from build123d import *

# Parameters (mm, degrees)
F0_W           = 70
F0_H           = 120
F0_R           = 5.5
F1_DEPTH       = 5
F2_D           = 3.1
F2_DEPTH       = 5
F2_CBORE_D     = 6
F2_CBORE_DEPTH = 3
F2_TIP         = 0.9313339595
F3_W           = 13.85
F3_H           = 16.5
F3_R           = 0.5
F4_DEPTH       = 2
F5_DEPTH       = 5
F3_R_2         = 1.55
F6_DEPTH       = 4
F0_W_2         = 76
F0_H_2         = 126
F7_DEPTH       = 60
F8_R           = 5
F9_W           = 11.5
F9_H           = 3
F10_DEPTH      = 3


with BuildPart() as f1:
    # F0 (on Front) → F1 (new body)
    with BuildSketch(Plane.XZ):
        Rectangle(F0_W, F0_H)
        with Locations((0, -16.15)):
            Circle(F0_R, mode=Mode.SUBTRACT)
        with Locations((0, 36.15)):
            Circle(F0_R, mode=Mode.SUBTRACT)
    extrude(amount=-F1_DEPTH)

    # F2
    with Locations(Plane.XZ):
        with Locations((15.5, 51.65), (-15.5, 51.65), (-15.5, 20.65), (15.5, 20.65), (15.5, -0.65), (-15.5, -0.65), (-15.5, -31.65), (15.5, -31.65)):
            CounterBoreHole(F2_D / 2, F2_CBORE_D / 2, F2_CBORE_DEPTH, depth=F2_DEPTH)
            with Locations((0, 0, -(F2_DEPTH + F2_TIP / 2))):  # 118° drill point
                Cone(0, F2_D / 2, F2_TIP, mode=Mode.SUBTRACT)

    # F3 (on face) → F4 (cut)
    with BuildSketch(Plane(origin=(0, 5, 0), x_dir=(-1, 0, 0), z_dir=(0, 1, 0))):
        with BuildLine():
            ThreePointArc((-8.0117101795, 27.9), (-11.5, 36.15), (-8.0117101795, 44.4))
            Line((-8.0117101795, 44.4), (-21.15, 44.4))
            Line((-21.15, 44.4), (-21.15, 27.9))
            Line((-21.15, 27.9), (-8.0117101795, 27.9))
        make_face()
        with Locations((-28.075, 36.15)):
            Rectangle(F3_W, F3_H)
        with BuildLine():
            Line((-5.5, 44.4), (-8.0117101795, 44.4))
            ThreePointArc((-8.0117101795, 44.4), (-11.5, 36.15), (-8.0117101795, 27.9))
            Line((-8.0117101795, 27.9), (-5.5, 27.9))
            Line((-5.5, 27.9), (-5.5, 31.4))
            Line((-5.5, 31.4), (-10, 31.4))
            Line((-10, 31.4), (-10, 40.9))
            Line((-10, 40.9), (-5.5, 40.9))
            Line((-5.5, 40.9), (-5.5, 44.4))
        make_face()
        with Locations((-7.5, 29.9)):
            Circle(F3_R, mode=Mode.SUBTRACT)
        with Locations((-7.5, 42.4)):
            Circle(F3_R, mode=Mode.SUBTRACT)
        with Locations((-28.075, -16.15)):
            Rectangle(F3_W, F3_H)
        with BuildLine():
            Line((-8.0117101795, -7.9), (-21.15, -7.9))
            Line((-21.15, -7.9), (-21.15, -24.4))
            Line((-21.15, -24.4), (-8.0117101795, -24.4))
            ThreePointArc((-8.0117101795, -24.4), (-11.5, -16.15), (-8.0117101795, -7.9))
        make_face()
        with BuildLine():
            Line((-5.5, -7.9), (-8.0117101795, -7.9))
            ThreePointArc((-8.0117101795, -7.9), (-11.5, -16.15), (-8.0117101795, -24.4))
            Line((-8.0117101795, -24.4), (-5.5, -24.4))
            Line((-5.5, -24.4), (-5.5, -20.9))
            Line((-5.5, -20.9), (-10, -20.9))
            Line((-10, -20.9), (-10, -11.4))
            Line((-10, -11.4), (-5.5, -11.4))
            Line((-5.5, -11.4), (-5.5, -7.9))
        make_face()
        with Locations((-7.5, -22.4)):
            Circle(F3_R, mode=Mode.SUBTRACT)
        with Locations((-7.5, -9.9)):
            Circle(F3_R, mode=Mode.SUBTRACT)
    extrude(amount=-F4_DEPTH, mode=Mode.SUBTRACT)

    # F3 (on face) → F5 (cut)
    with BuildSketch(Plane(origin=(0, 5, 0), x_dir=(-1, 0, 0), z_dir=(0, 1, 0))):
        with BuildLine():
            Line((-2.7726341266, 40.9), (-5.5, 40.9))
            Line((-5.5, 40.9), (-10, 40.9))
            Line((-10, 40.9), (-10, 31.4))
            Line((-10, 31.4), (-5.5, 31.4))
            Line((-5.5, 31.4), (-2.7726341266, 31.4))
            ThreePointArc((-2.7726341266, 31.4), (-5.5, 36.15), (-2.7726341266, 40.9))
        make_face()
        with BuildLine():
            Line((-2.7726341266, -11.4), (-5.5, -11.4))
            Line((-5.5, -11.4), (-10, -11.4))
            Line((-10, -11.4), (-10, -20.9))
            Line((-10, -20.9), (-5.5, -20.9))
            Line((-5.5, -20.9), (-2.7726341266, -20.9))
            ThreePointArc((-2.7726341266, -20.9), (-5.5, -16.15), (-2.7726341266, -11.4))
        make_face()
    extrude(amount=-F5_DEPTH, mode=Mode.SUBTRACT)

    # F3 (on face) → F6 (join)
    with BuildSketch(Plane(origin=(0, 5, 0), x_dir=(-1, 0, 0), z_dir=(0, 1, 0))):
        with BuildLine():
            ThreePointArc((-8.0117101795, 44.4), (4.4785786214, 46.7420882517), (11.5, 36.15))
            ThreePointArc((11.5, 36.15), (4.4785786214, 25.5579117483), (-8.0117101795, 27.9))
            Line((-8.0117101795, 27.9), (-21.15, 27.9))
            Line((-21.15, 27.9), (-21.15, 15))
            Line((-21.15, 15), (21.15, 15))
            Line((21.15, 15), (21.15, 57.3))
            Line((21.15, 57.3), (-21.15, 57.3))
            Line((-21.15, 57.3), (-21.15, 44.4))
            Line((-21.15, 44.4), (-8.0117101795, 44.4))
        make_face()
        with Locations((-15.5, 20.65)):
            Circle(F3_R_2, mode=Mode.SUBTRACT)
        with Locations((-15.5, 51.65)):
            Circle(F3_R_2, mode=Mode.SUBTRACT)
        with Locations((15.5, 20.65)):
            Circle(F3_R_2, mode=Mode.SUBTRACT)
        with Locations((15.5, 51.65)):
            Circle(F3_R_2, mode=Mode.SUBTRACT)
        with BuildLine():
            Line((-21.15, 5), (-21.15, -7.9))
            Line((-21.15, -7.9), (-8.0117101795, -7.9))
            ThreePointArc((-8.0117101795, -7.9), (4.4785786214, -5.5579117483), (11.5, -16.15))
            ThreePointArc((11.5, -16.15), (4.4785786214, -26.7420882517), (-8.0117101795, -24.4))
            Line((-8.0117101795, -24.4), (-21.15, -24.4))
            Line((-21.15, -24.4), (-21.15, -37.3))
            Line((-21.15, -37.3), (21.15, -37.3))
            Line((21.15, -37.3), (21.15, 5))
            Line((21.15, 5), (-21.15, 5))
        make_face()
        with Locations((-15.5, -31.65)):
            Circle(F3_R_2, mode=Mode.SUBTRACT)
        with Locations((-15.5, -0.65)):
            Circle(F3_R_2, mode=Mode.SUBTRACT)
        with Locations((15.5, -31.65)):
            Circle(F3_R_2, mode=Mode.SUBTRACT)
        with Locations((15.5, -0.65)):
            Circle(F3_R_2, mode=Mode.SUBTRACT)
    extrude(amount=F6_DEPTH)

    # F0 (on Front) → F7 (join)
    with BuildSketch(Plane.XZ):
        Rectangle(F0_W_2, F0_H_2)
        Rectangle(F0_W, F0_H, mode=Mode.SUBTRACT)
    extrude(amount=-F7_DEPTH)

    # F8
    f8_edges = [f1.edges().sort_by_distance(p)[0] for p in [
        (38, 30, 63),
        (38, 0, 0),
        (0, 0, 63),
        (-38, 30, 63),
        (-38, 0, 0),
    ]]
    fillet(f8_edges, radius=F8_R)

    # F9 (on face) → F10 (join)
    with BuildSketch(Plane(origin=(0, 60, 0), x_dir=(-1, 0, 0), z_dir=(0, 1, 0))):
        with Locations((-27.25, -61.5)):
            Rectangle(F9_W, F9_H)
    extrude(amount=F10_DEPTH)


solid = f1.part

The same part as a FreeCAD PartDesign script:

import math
import FreeCAD as App
import Part
import Sketcher

V = App.Vector


def edges_at(feature, points):
    """Names of the edges that pass closest to the given points."""
    edges = feature.Shape.Edges
    near = lambda p: min(range(len(edges)), key=lambda i: edges[i].distToShape(Part.Vertex(*p))[0])
    return sorted({f"Edge{near(p) + 1}" for p in points})

doc = App.newDocument("Part")
body = doc.addObject("PartDesign::Body", "Body")

sketch1 = body.newObject("Sketcher::SketchObject", "Sketch")
sketch1.AttachmentSupport = (doc.getObject("XZ_Plane"), [""])
sketch1.MapMode = "FlatFace"
sketch1.addGeometry(Part.LineSegment(V(-35, 60, 0), V(-35, -60, 0)), False)
sketch1.addGeometry(Part.LineSegment(V(-35, -60, 0), V(35, -60, 0)), False)
sketch1.addGeometry(Part.LineSegment(V(35, -60, 0), V(35, 60, 0)), False)
sketch1.addGeometry(Part.LineSegment(V(35, 60, 0), V(-35, 60, 0)), False)
sketch1.addGeometry(Part.Circle(V(0, -16, 0), V(0, 0, 1), 6), False)
sketch1.addGeometry(Part.Circle(V(0, 36, 0), V(0, 0, 1), 6), False)
sketch1.addConstraint(Sketcher.Constraint("Coincident", 0, 2, 1, 1))
sketch1.addConstraint(Sketcher.Constraint("Coincident", 1, 2, 2, 1))
sketch1.addConstraint(Sketcher.Constraint("Coincident", 2, 2, 3, 1))
sketch1.addConstraint(Sketcher.Constraint("Coincident", 3, 2, 0, 1))
sketch1.addConstraint(Sketcher.Constraint("Vertical", 0))
sketch1.addConstraint(Sketcher.Constraint("Horizontal", 1))
sketch1.addConstraint(Sketcher.Constraint("Vertical", 2))
sketch1.addConstraint(Sketcher.Constraint("Horizontal", 3))
sketch1.addConstraint(Sketcher.Constraint("Equal", 4, 5))
sketch1.addConstraint(Sketcher.Constraint("Symmetric", 0, 2, 2, 2, -1, 1))
sketch1.addConstraint(Sketcher.Constraint("PointOnObject", 4, 3, -2))
sketch1.addConstraint(Sketcher.Constraint("PointOnObject", 5, 3, -2))
sketch1.addConstraint(Sketcher.Constraint("Diameter", 4, 11.0))
sketch1.addConstraint(Sketcher.Constraint("DistanceX", 1, 1, 1, 2, 70.0))
sketch1.addConstraint(Sketcher.Constraint("DistanceY", 0, 2, 0, 1, 120.0))
sketch1.addConstraint(Sketcher.Constraint("DistanceY", 4, 3, 5, 3, 52.3))
sketch1.addConstraint(Sketcher.Constraint("DistanceY", 4, 3, -1, 1, 16.15))
pad1 = body.newObject("PartDesign::Pad", "Pad")
pad1.Profile = sketch1
pad1.Length = 5
pad1.Reversed = True

sketch2 = body.newObject("Sketcher::SketchObject", "Sketch001")
sketch2.AttachmentSupport = (doc.getObject("XZ_Plane"), [""])
sketch2.MapMode = "FlatFace"
sketch2.addGeometry(Part.Circle(V(15.5, 51.6, 0), V(0, 0, 1), 1.6), False)
sketch2.addGeometry(Part.Circle(V(-15.5, 51.6, 0), V(0, 0, 1), 1.6), False)
sketch2.addGeometry(Part.Circle(V(-15.5, 20.6, 0), V(0, 0, 1), 1.6), False)
sketch2.addGeometry(Part.Circle(V(15.5, 20.6, 0), V(0, 0, 1), 1.6), False)
sketch2.addGeometry(Part.Circle(V(15.5, -0.7, 0), V(0, 0, 1), 1.6), False)
sketch2.addGeometry(Part.Circle(V(-15.5, -0.7, 0), V(0, 0, 1), 1.6), False)
sketch2.addGeometry(Part.Circle(V(-15.5, -31.6, 0), V(0, 0, 1), 1.6), False)
sketch2.addGeometry(Part.Circle(V(15.5, -31.6, 0), V(0, 0, 1), 1.6), False)
sketch2.addConstraint(Sketcher.Constraint("Equal", 0, 1))
sketch2.addConstraint(Sketcher.Constraint("Equal", 1, 2))
sketch2.addConstraint(Sketcher.Constraint("Equal", 2, 3))
sketch2.addConstraint(Sketcher.Constraint("Equal", 3, 4))
sketch2.addConstraint(Sketcher.Constraint("Equal", 4, 5))
sketch2.addConstraint(Sketcher.Constraint("Equal", 5, 6))
sketch2.addConstraint(Sketcher.Constraint("Equal", 6, 7))
sketch2.addConstraint(Sketcher.Constraint("Symmetric", 0, 3, 1, 3, -2))
sketch2.addConstraint(Sketcher.Constraint("Symmetric", 2, 3, 3, 3, -2))
sketch2.addConstraint(Sketcher.Constraint("Symmetric", 4, 3, 5, 3, -2))
sketch2.addConstraint(Sketcher.Constraint("Symmetric", 6, 3, 7, 3, -2))
sketch2.addConstraint(Sketcher.Constraint("Vertical", 1, 3, 2, 3))
sketch2.addConstraint(Sketcher.Constraint("Vertical", 3, 3, 4, 3))
sketch2.addConstraint(Sketcher.Constraint("Vertical", 5, 3, 6, 3))
sketch2.addConstraint(Sketcher.Constraint("Diameter", 0, 3.1))
sketch2.addConstraint(Sketcher.Constraint("DistanceX", 1, 3, 0, 3, 31.0))
sketch2.addConstraint(Sketcher.Constraint("DistanceY", 2, 3, 1, 3, 31.0))
sketch2.addConstraint(Sketcher.Constraint("DistanceY", 6, 3, 5, 3, 31.0))
sketch2.addConstraint(Sketcher.Constraint("DistanceY", 4, 3, 3, 3, 21.3))
sketch2.addConstraint(Sketcher.Constraint("DistanceY", -1, 1, 0, 3, 51.65))
doc.recompute()
hole = body.newObject("PartDesign::Hole", "Hole")
hole.Profile = sketch2
hole.ThreadType = "None"
hole.Diameter = 3.1
hole.DepthType = "Dimension"
hole.Depth = 5
hole.DrillPoint = "Angled"
hole.DrillPointAngle = 118
hole.HoleCutType = "Counterbore"
hole.HoleCutDiameter = 6
hole.HoleCutDepth = 3

sketch3 = body.newObject("Sketcher::SketchObject", "Sketch002")
sketch3.AttachmentSupport = (doc.getObject("XZ_Plane"), [""])
sketch3.MapMode = "FlatFace"
sketch3.AttachmentOffset = App.Placement(V(0, 0, -5), App.Rotation())
sketch3.addGeometry(Part.LineSegment(V(35, 44.4, 0), V(35, 27.9, 0)), False)
sketch3.addGeometry(Part.LineSegment(V(35, 27.9, 0), V(5.5, 27.9, 0)), False)
sketch3.addGeometry(Part.LineSegment(V(5.5, 27.9, 0), V(5.5, 31.4, 0)), False)
sketch3.addGeometry(Part.LineSegment(V(5.5, 31.4, 0), V(10, 31.4, 0)), False)
sketch3.addGeometry(Part.LineSegment(V(10, 31.4, 0), V(10, 40.9, 0)), False)
sketch3.addGeometry(Part.LineSegment(V(10, 40.9, 0), V(5.5, 40.9, 0)), False)
sketch3.addGeometry(Part.LineSegment(V(5.5, 40.9, 0), V(5.5, 44.4, 0)), False)
sketch3.addGeometry(Part.LineSegment(V(5.5, 44.4, 0), V(35, 44.4, 0)), False)
sketch3.addGeometry(Part.Circle(V(7.5, 29.9, 0), V(0, 0, 1), 0.5), False)
sketch3.addGeometry(Part.Circle(V(7.5, 42.4, 0), V(0, 0, 1), 0.5), False)
sketch3.addGeometry(Part.LineSegment(V(35, -7.9, 0), V(35, -24.4, 0)), False)
sketch3.addGeometry(Part.LineSegment(V(35, -24.4, 0), V(5.5, -24.4, 0)), False)
sketch3.addGeometry(Part.LineSegment(V(5.5, -24.4, 0), V(5.5, -20.9, 0)), False)
sketch3.addGeometry(Part.LineSegment(V(5.5, -20.9, 0), V(10, -20.9, 0)), False)
sketch3.addGeometry(Part.LineSegment(V(10, -20.9, 0), V(10, -11.4, 0)), False)
sketch3.addGeometry(Part.LineSegment(V(10, -11.4, 0), V(5.5, -11.4, 0)), False)
sketch3.addGeometry(Part.LineSegment(V(5.5, -11.4, 0), V(5.5, -7.9, 0)), False)
sketch3.addGeometry(Part.LineSegment(V(5.5, -7.9, 0), V(35, -7.9, 0)), False)
sketch3.addGeometry(Part.Circle(V(7.5, -22.4, 0), V(0, 0, 1), 0.5), False)
sketch3.addGeometry(Part.Circle(V(7.5, -9.9, 0), V(0, 0, 1), 0.5), False)
sketch3.addConstraint(Sketcher.Constraint("Coincident", 0, 2, 1, 1))
sketch3.addConstraint(Sketcher.Constraint("Coincident", 1, 2, 2, 1))
sketch3.addConstraint(Sketcher.Constraint("Coincident", 2, 2, 3, 1))
sketch3.addConstraint(Sketcher.Constraint("Coincident", 3, 2, 4, 1))
sketch3.addConstraint(Sketcher.Constraint("Coincident", 4, 2, 5, 1))
sketch3.addConstraint(Sketcher.Constraint("Coincident", 5, 2, 6, 1))
sketch3.addConstraint(Sketcher.Constraint("Coincident", 6, 2, 7, 1))
sketch3.addConstraint(Sketcher.Constraint("Coincident", 7, 2, 0, 1))
sketch3.addConstraint(Sketcher.Constraint("Coincident", 10, 2, 11, 1))
sketch3.addConstraint(Sketcher.Constraint("Coincident", 11, 2, 12, 1))
sketch3.addConstraint(Sketcher.Constraint("Coincident", 12, 2, 13, 1))
sketch3.addConstraint(Sketcher.Constraint("Coincident", 13, 2, 14, 1))
sketch3.addConstraint(Sketcher.Constraint("Coincident", 14, 2, 15, 1))
sketch3.addConstraint(Sketcher.Constraint("Coincident", 15, 2, 16, 1))
sketch3.addConstraint(Sketcher.Constraint("Coincident", 16, 2, 17, 1))
sketch3.addConstraint(Sketcher.Constraint("Coincident", 17, 2, 10, 1))
sketch3.addConstraint(Sketcher.Constraint("Vertical", 0))
sketch3.addConstraint(Sketcher.Constraint("Horizontal", 1))
sketch3.addConstraint(Sketcher.Constraint("Vertical", 2))
sketch3.addConstraint(Sketcher.Constraint("Horizontal", 3))
sketch3.addConstraint(Sketcher.Constraint("Vertical", 4))
sketch3.addConstraint(Sketcher.Constraint("Horizontal", 5))
sketch3.addConstraint(Sketcher.Constraint("Vertical", 6))
sketch3.addConstraint(Sketcher.Constraint("Horizontal", 7))
sketch3.addConstraint(Sketcher.Constraint("Vertical", 10))
sketch3.addConstraint(Sketcher.Constraint("Horizontal", 11))
sketch3.addConstraint(Sketcher.Constraint("Vertical", 12))
sketch3.addConstraint(Sketcher.Constraint("Horizontal", 13))
sketch3.addConstraint(Sketcher.Constraint("Vertical", 14))
sketch3.addConstraint(Sketcher.Constraint("Horizontal", 15))
sketch3.addConstraint(Sketcher.Constraint("Vertical", 16))
sketch3.addConstraint(Sketcher.Constraint("Horizontal", 17))
sketch3.addConstraint(Sketcher.Constraint("Equal", 8, 9))
sketch3.addConstraint(Sketcher.Constraint("Equal", 9, 18))
sketch3.addConstraint(Sketcher.Constraint("Equal", 18, 19))
sketch3.addConstraint(Sketcher.Constraint("Vertical", 8, 3, 9, 3))
sketch3.addConstraint(Sketcher.Constraint("Vertical", 9, 3, 18, 3))
sketch3.addConstraint(Sketcher.Constraint("Vertical", 18, 3, 19, 3))
sketch3.addConstraint(Sketcher.Constraint("Vertical", 2, 2, 5, 2))
sketch3.addConstraint(Sketcher.Constraint("Vertical", 7, 2, 10, 2))
sketch3.addConstraint(Sketcher.Constraint("Vertical", 6, 2, 11, 2))
sketch3.addConstraint(Sketcher.Constraint("Vertical", 4, 2, 13, 2))
sketch3.addConstraint(Sketcher.Constraint("Vertical", 12, 2, 15, 2))
sketch3.addConstraint(Sketcher.Constraint("Equal", 2, 6))
sketch3.addConstraint(Sketcher.Constraint("Equal", 0, 10))
sketch3.addConstraint(Sketcher.Constraint("Equal", 6, 12))
sketch3.addConstraint(Sketcher.Constraint("Equal", 4, 14))
sketch3.addConstraint(Sketcher.Constraint("Diameter", 8, 1.0))
sketch3.addConstraint(Sketcher.Constraint("DistanceX", 1, 2, 1, 1, 29.5))
sketch3.addConstraint(Sketcher.Constraint("DistanceX", 3, 1, 3, 2, 4.5))
sketch3.addConstraint(Sketcher.Constraint("DistanceY", 0, 2, 0, 1, 16.5))
sketch3.addConstraint(Sketcher.Constraint("DistanceY", 2, 1, 2, 2, 3.5))
sketch3.addConstraint(Sketcher.Constraint("DistanceX", -1, 1, 0, 2, 35.0))
sketch3.addConstraint(Sketcher.Constraint("DistanceY", 0, 2, 8, 3, 2.0))
sketch3.addConstraint(Sketcher.Constraint("DistanceX", 1, 2, 8, 3, 2.0))
sketch3.addConstraint(Sketcher.Constraint("DistanceY", 2, 2, 9, 3, 11.0))
sketch3.addConstraint(Sketcher.Constraint("DistanceY", 10, 2, 18, 3, 2.0))
sketch3.addConstraint(Sketcher.Constraint("DistanceY", 12, 2, 19, 3, 11.0))
sketch3.addConstraint(Sketcher.Constraint("DistanceY", -1, 1, 8, 3, 29.9))
sketch3.addConstraint(Sketcher.Constraint("DistanceY", 18, 3, -1, 1, 22.4))
pocket1 = body.newObject("PartDesign::Pocket", "Pocket")
pocket1.Profile = sketch3
pocket1.Length = 2
pocket1.Reversed = True

sketch4 = body.newObject("Sketcher::SketchObject", "Sketch003")
sketch4.AttachmentSupport = (doc.getObject("XZ_Plane"), [""])
sketch4.MapMode = "FlatFace"
sketch4.AttachmentOffset = App.Placement(V(0, 0, -5), App.Rotation())
sketch4.addGeometry(Part.LineSegment(V(3, 41, 0), V(10, 41, 0)), False)
sketch4.addGeometry(Part.LineSegment(V(10, 41, 0), V(10, 31, 0)), False)
sketch4.addGeometry(Part.LineSegment(V(10, 31, 0), V(3, 31, 0)), False)
sketch4.addGeometry(Part.ArcOfCircle(Part.Circle(V(0, 36, 0), V(0, 0, 1), 6), math.radians(-60), math.radians(60)), False)
sketch4.addGeometry(Part.LineSegment(V(3, -11, 0), V(10, -11, 0)), False)
sketch4.addGeometry(Part.LineSegment(V(10, -11, 0), V(10, -21, 0)), False)
sketch4.addGeometry(Part.LineSegment(V(10, -21, 0), V(3, -21, 0)), False)
sketch4.addGeometry(Part.ArcOfCircle(Part.Circle(V(0, -16, 0), V(0, 0, 1), 6), math.radians(-60), math.radians(60)), False)
sketch4.addConstraint(Sketcher.Constraint("Coincident", 0, 2, 1, 1))
sketch4.addConstraint(Sketcher.Constraint("Coincident", 1, 2, 2, 1))
sketch4.addConstraint(Sketcher.Constraint("Coincident", 2, 2, 3, 1))
sketch4.addConstraint(Sketcher.Constraint("Coincident", 3, 2, 0, 1))
sketch4.addConstraint(Sketcher.Constraint("Coincident", 4, 2, 5, 1))
sketch4.addConstraint(Sketcher.Constraint("Coincident", 5, 2, 6, 1))
sketch4.addConstraint(Sketcher.Constraint("Coincident", 6, 2, 7, 1))
sketch4.addConstraint(Sketcher.Constraint("Coincident", 7, 2, 4, 1))
sketch4.addConstraint(Sketcher.Constraint("Horizontal", 0))
sketch4.addConstraint(Sketcher.Constraint("Vertical", 1))
sketch4.addConstraint(Sketcher.Constraint("Horizontal", 2))
sketch4.addConstraint(Sketcher.Constraint("Horizontal", 4))
sketch4.addConstraint(Sketcher.Constraint("Vertical", 5))
sketch4.addConstraint(Sketcher.Constraint("Horizontal", 6))
sketch4.addConstraint(Sketcher.Constraint("Equal", 3, 7))
sketch4.addConstraint(Sketcher.Constraint("PointOnObject", 3, 3, -2))
sketch4.addConstraint(Sketcher.Constraint("PointOnObject", 7, 3, -2))
sketch4.addConstraint(Sketcher.Constraint("Vertical", 2, 2, 3, 2))
sketch4.addConstraint(Sketcher.Constraint("Vertical", 1, 2, 4, 2))
sketch4.addConstraint(Sketcher.Constraint("Vertical", 3, 2, 6, 2))
sketch4.addConstraint(Sketcher.Constraint("Vertical", 6, 2, 7, 2))
sketch4.addConstraint(Sketcher.Constraint("Radius", 3, 5.5))
sketch4.addConstraint(Sketcher.Constraint("DistanceY", 1, 2, 1, 1, 9.5))
sketch4.addConstraint(Sketcher.Constraint("DistanceX", -1, 1, 0, 2, 10.0))
sketch4.addConstraint(Sketcher.Constraint("DistanceY", -1, 1, 0, 2, 40.9))
sketch4.addConstraint(Sketcher.Constraint("DistanceY", 4, 2, -1, 1, 11.4))
pocket2 = body.newObject("PartDesign::Pocket", "Pocket001")
pocket2.Profile = sketch4
pocket2.Length = 5
pocket2.Reversed = True

sketch5 = body.newObject("Sketcher::SketchObject", "Sketch004")
sketch5.AttachmentSupport = (doc.getObject("XZ_Plane"), [""])
sketch5.MapMode = "FlatFace"
sketch5.AttachmentOffset = App.Placement(V(0, 0, -5), App.Rotation())
sketch5.addGeometry(Part.ArcOfCircle(Part.Circle(V(0, 36.1, 0), V(0, 0, 1), 11.5), math.radians(46), math.radians(180)), False)
sketch5.addGeometry(Part.ArcOfCircle(Part.Circle(V(0, 36.1, 0), V(0, 0, 1), 11.5), math.radians(180), math.radians(314)), False)
sketch5.addGeometry(Part.LineSegment(V(8, 27.9, 0), V(21.1, 27.9, 0)), False)
sketch5.addGeometry(Part.LineSegment(V(21.1, 27.9, 0), V(21.1, 15, 0)), False)
sketch5.addGeometry(Part.LineSegment(V(21.1, 15, 0), V(-21.1, 15, 0)), False)
sketch5.addGeometry(Part.LineSegment(V(-21.1, 15, 0), V(-21.1, 57.3, 0)), False)
sketch5.addGeometry(Part.LineSegment(V(-21.1, 57.3, 0), V(21.1, 57.3, 0)), False)
sketch5.addGeometry(Part.LineSegment(V(21.1, 57.3, 0), V(21.1, 44.4, 0)), False)
sketch5.addGeometry(Part.LineSegment(V(21.1, 44.4, 0), V(8, 44.4, 0)), False)
sketch5.addGeometry(Part.Circle(V(15.5, 20.6, 0), V(0, 0, 1), 1.6), False)
sketch5.addGeometry(Part.Circle(V(-15.5, 20.6, 0), V(0, 0, 1), 1.6), False)
sketch5.addGeometry(Part.Circle(V(15.5, 51.6, 0), V(0, 0, 1), 1.6), False)
sketch5.addGeometry(Part.Circle(V(-15.5, 51.6, 0), V(0, 0, 1), 1.6), False)
sketch5.addGeometry(Part.LineSegment(V(21.1, 5, 0), V(21.1, -7.9, 0)), False)
sketch5.addGeometry(Part.LineSegment(V(21.1, -7.9, 0), V(8, -7.9, 0)), False)
sketch5.addGeometry(Part.ArcOfCircle(Part.Circle(V(0, -16.1, 0), V(0, 0, 1), 11.5), math.radians(46), math.radians(180)), False)
sketch5.addGeometry(Part.ArcOfCircle(Part.Circle(V(0, -16.1, 0), V(0, 0, 1), 11.5), math.radians(180), math.radians(314)), False)
sketch5.addGeometry(Part.LineSegment(V(8, -24.4, 0), V(21.1, -24.4, 0)), False)
sketch5.addGeometry(Part.LineSegment(V(21.1, -24.4, 0), V(21.1, -37.3, 0)), False)
sketch5.addGeometry(Part.LineSegment(V(21.1, -37.3, 0), V(-21.1, -37.3, 0)), False)
sketch5.addGeometry(Part.LineSegment(V(-21.1, -37.3, 0), V(-21.1, 5, 0)), False)
sketch5.addGeometry(Part.LineSegment(V(-21.1, 5, 0), V(21.1, 5, 0)), False)
sketch5.addGeometry(Part.Circle(V(15.5, -31.6, 0), V(0, 0, 1), 1.6), False)
sketch5.addGeometry(Part.Circle(V(-15.5, -31.6, 0), V(0, 0, 1), 1.6), False)
sketch5.addGeometry(Part.Circle(V(15.5, -0.7, 0), V(0, 0, 1), 1.6), False)
sketch5.addGeometry(Part.Circle(V(-15.5, -0.7, 0), V(0, 0, 1), 1.6), False)
sketch5.addConstraint(Sketcher.Constraint("Tangent", 0, 2, 1, 1))
sketch5.addConstraint(Sketcher.Constraint("Coincident", 1, 2, 2, 1))
sketch5.addConstraint(Sketcher.Constraint("Coincident", 2, 2, 3, 1))
sketch5.addConstraint(Sketcher.Constraint("Coincident", 3, 2, 4, 1))
sketch5.addConstraint(Sketcher.Constraint("Coincident", 4, 2, 5, 1))
sketch5.addConstraint(Sketcher.Constraint("Coincident", 5, 2, 6, 1))
sketch5.addConstraint(Sketcher.Constraint("Coincident", 6, 2, 7, 1))
sketch5.addConstraint(Sketcher.Constraint("Coincident", 7, 2, 8, 1))
sketch5.addConstraint(Sketcher.Constraint("Coincident", 8, 2, 0, 1))
sketch5.addConstraint(Sketcher.Constraint("Coincident", 13, 2, 14, 1))
sketch5.addConstraint(Sketcher.Constraint("Coincident", 14, 2, 15, 1))
sketch5.addConstraint(Sketcher.Constraint("Tangent", 15, 2, 16, 1))
sketch5.addConstraint(Sketcher.Constraint("Coincident", 16, 2, 17, 1))
sketch5.addConstraint(Sketcher.Constraint("Coincident", 17, 2, 18, 1))
sketch5.addConstraint(Sketcher.Constraint("Coincident", 18, 2, 19, 1))
sketch5.addConstraint(Sketcher.Constraint("Coincident", 19, 2, 20, 1))
sketch5.addConstraint(Sketcher.Constraint("Coincident", 20, 2, 21, 1))
sketch5.addConstraint(Sketcher.Constraint("Coincident", 21, 2, 13, 1))
sketch5.addConstraint(Sketcher.Constraint("Horizontal", 2))
sketch5.addConstraint(Sketcher.Constraint("Vertical", 3))
sketch5.addConstraint(Sketcher.Constraint("Horizontal", 4))
sketch5.addConstraint(Sketcher.Constraint("Vertical", 5))
sketch5.addConstraint(Sketcher.Constraint("Horizontal", 6))
sketch5.addConstraint(Sketcher.Constraint("Vertical", 7))
sketch5.addConstraint(Sketcher.Constraint("Horizontal", 8))
sketch5.addConstraint(Sketcher.Constraint("Vertical", 13))
sketch5.addConstraint(Sketcher.Constraint("Horizontal", 14))
sketch5.addConstraint(Sketcher.Constraint("Horizontal", 17))
sketch5.addConstraint(Sketcher.Constraint("Vertical", 18))
sketch5.addConstraint(Sketcher.Constraint("Horizontal", 19))
sketch5.addConstraint(Sketcher.Constraint("Vertical", 20))
sketch5.addConstraint(Sketcher.Constraint("Horizontal", 21))
sketch5.addConstraint(Sketcher.Constraint("Equal", 0, 1))
sketch5.addConstraint(Sketcher.Constraint("Equal", 9, 10))
sketch5.addConstraint(Sketcher.Constraint("Equal", 10, 11))
sketch5.addConstraint(Sketcher.Constraint("Equal", 11, 12))
sketch5.addConstraint(Sketcher.Constraint("Equal", 1, 15))
sketch5.addConstraint(Sketcher.Constraint("Equal", 15, 16))
sketch5.addConstraint(Sketcher.Constraint("Equal", 12, 22))
sketch5.addConstraint(Sketcher.Constraint("Equal", 22, 23))
sketch5.addConstraint(Sketcher.Constraint("Equal", 23, 24))
sketch5.addConstraint(Sketcher.Constraint("Equal", 24, 25))
sketch5.addConstraint(Sketcher.Constraint("Symmetric", 9, 3, 10, 3, -2))
sketch5.addConstraint(Sketcher.Constraint("Symmetric", 11, 3, 12, 3, -2))
sketch5.addConstraint(Sketcher.Constraint("Symmetric", 22, 3, 23, 3, -2))
sketch5.addConstraint(Sketcher.Constraint("Symmetric", 24, 3, 25, 3, -2))
sketch5.addConstraint(Sketcher.Constraint("PointOnObject", 0, 3, -2))
sketch5.addConstraint(Sketcher.Constraint("PointOnObject", 15, 3, -2))
sketch5.addConstraint(Sketcher.Constraint("Horizontal", 1, 3, 0, 2))
sketch5.addConstraint(Sketcher.Constraint("Horizontal", 16, 3, 15, 2))
sketch5.addConstraint(Sketcher.Constraint("Vertical", 9, 3, 11, 3))
sketch5.addConstraint(Sketcher.Constraint("Vertical", 11, 3, 22, 3))
sketch5.addConstraint(Sketcher.Constraint("Vertical", 22, 3, 24, 3))
sketch5.addConstraint(Sketcher.Constraint("Vertical", 3, 2, 6, 2))
sketch5.addConstraint(Sketcher.Constraint("Vertical", 1, 2, 8, 2))
sketch5.addConstraint(Sketcher.Constraint("Vertical", 7, 2, 13, 2))
sketch5.addConstraint(Sketcher.Constraint("Vertical", 8, 2, 14, 2))
sketch5.addConstraint(Sketcher.Constraint("Vertical", 14, 2, 16, 2))
sketch5.addConstraint(Sketcher.Constraint("Vertical", 13, 2, 17, 2))
sketch5.addConstraint(Sketcher.Constraint("Vertical", 5, 2, 19, 2))
sketch5.addConstraint(Sketcher.Constraint("Equal", 21, 5))
sketch5.addConstraint(Sketcher.Constraint("Equal", 3, 7))
sketch5.addConstraint(Sketcher.Constraint("Equal", 7, 13))
sketch5.addConstraint(Sketcher.Constraint("Equal", 13, 18))
sketch5.addConstraint(Sketcher.Constraint("Diameter", 9, 3.1))
sketch5.addConstraint(Sketcher.Constraint("Radius", 0, 11.5))
sketch5.addConstraint(Sketcher.Constraint("DistanceX", 4, 2, 4, 1, 42.3))
sketch5.addConstraint(Sketcher.Constraint("DistanceY", 3, 2, 3, 1, 12.9))
sketch5.addConstraint(Sketcher.Constraint("DistanceY", -1, 1, 3, 2, 15.0))
sketch5.addConstraint(Sketcher.Constraint("DistanceY", -1, 1, 20, 2, 5.0))
sketch5.addConstraint(Sketcher.Constraint("DistanceX", 10, 3, 9, 3, 31.0))
sketch5.addConstraint(Sketcher.Constraint("DistanceY", 9, 3, 11, 3, 31.0))
sketch5.addConstraint(Sketcher.Constraint("DistanceY", 22, 3, 24, 3, 31.0))
sketch5.addConstraint(Sketcher.Constraint("DistanceY", 9, 3, 0, 3, 15.5))
sketch5.addConstraint(Sketcher.Constraint("DistanceY", 22, 3, 15, 3, 15.5))
sketch5.addConstraint(Sketcher.Constraint("DistanceX", -1, 1, 2, 2, 21.15))
pad2 = body.newObject("PartDesign::Pad", "Pad001")
pad2.Profile = sketch5
pad2.Length = 4
pad2.Reversed = True

sketch6 = body.newObject("Sketcher::SketchObject", "Sketch005")
sketch6.AttachmentSupport = (doc.getObject("XZ_Plane"), [""])
sketch6.MapMode = "FlatFace"
sketch6.addGeometry(Part.LineSegment(V(-38, 63, 0), V(-38, -63, 0)), False)
sketch6.addGeometry(Part.LineSegment(V(-38, -63, 0), V(38, -63, 0)), False)
sketch6.addGeometry(Part.LineSegment(V(38, -63, 0), V(38, 63, 0)), False)
sketch6.addGeometry(Part.LineSegment(V(38, 63, 0), V(-38, 63, 0)), False)
sketch6.addGeometry(Part.LineSegment(V(35, -60, 0), V(-35, -60, 0)), False)
sketch6.addGeometry(Part.LineSegment(V(-35, -60, 0), V(-35, 60, 0)), False)
sketch6.addGeometry(Part.LineSegment(V(-35, 60, 0), V(35, 60, 0)), False)
sketch6.addGeometry(Part.LineSegment(V(35, 60, 0), V(35, -60, 0)), False)
sketch6.addConstraint(Sketcher.Constraint("Coincident", 0, 2, 1, 1))
sketch6.addConstraint(Sketcher.Constraint("Coincident", 1, 2, 2, 1))
sketch6.addConstraint(Sketcher.Constraint("Coincident", 2, 2, 3, 1))
sketch6.addConstraint(Sketcher.Constraint("Coincident", 3, 2, 0, 1))
sketch6.addConstraint(Sketcher.Constraint("Coincident", 4, 2, 5, 1))
sketch6.addConstraint(Sketcher.Constraint("Coincident", 5, 2, 6, 1))
sketch6.addConstraint(Sketcher.Constraint("Coincident", 6, 2, 7, 1))
sketch6.addConstraint(Sketcher.Constraint("Coincident", 7, 2, 4, 1))
sketch6.addConstraint(Sketcher.Constraint("Vertical", 0))
sketch6.addConstraint(Sketcher.Constraint("Horizontal", 1))
sketch6.addConstraint(Sketcher.Constraint("Vertical", 2))
sketch6.addConstraint(Sketcher.Constraint("Horizontal", 3))
sketch6.addConstraint(Sketcher.Constraint("Horizontal", 4))
sketch6.addConstraint(Sketcher.Constraint("Vertical", 5))
sketch6.addConstraint(Sketcher.Constraint("Horizontal", 6))
sketch6.addConstraint(Sketcher.Constraint("Vertical", 7))
sketch6.addConstraint(Sketcher.Constraint("Symmetric", 0, 2, 2, 2, -1, 1))
sketch6.addConstraint(Sketcher.Constraint("Symmetric", 4, 2, 6, 2, -1, 1))
sketch6.addConstraint(Sketcher.Constraint("DistanceX", 1, 1, 1, 2, 76.0))
sketch6.addConstraint(Sketcher.Constraint("DistanceX", 4, 2, 4, 1, 70.0))
sketch6.addConstraint(Sketcher.Constraint("DistanceY", 0, 2, 0, 1, 126.0))
sketch6.addConstraint(Sketcher.Constraint("DistanceY", 5, 1, 5, 2, 120.0))
pad3 = body.newObject("PartDesign::Pad", "Pad002")
pad3.Profile = sketch6
pad3.Length = 60
pad3.Reversed = True
doc.recompute()

fillet = body.newObject("PartDesign::Fillet", "Fillet")
fillet.Base = (pad3, edges_at(pad3, [
    (38, 30, 63),
    (38, 0, 0),
    (0, 0, 63),
    (-38, 30, 63),
    (-38, 0, 0),
]))
fillet.Radius = 5

sketch7 = body.newObject("Sketcher::SketchObject", "Sketch006")
sketch7.AttachmentSupport = (doc.getObject("XZ_Plane"), [""])
sketch7.MapMode = "FlatFace"
sketch7.AttachmentOffset = App.Placement(V(0, 0, -60), App.Rotation())
sketch7.addGeometry(Part.LineSegment(V(33, -60, 0), V(33, -63, 0)), False)
sketch7.addGeometry(Part.LineSegment(V(33, -63, 0), V(21.5, -63, 0)), False)
sketch7.addGeometry(Part.LineSegment(V(21.5, -63, 0), V(21.5, -60, 0)), False)
sketch7.addGeometry(Part.LineSegment(V(21.5, -60, 0), V(33, -60, 0)), False)
sketch7.addConstraint(Sketcher.Constraint("Coincident", 0, 2, 1, 1))
sketch7.addConstraint(Sketcher.Constraint("Coincident", 1, 2, 2, 1))
sketch7.addConstraint(Sketcher.Constraint("Coincident", 2, 2, 3, 1))
sketch7.addConstraint(Sketcher.Constraint("Coincident", 3, 2, 0, 1))
sketch7.addConstraint(Sketcher.Constraint("Vertical", 0))
sketch7.addConstraint(Sketcher.Constraint("Horizontal", 1))
sketch7.addConstraint(Sketcher.Constraint("Vertical", 2))
sketch7.addConstraint(Sketcher.Constraint("Horizontal", 3))
sketch7.addConstraint(Sketcher.Constraint("DistanceY", 0, 2, 0, 1, 3.0))
sketch7.addConstraint(Sketcher.Constraint("DistanceX", 1, 2, 1, 1, 11.5))
sketch7.addConstraint(Sketcher.Constraint("DistanceX", -1, 1, 0, 2, 33.0))
sketch7.addConstraint(Sketcher.Constraint("DistanceY", 0, 2, -1, 1, 63.0))
pad4 = body.newObject("PartDesign::Pad", "Pad003")
pad4.Profile = sketch7
pad4.Length = 3
pad4.Reversed = True

doc.recompute()
